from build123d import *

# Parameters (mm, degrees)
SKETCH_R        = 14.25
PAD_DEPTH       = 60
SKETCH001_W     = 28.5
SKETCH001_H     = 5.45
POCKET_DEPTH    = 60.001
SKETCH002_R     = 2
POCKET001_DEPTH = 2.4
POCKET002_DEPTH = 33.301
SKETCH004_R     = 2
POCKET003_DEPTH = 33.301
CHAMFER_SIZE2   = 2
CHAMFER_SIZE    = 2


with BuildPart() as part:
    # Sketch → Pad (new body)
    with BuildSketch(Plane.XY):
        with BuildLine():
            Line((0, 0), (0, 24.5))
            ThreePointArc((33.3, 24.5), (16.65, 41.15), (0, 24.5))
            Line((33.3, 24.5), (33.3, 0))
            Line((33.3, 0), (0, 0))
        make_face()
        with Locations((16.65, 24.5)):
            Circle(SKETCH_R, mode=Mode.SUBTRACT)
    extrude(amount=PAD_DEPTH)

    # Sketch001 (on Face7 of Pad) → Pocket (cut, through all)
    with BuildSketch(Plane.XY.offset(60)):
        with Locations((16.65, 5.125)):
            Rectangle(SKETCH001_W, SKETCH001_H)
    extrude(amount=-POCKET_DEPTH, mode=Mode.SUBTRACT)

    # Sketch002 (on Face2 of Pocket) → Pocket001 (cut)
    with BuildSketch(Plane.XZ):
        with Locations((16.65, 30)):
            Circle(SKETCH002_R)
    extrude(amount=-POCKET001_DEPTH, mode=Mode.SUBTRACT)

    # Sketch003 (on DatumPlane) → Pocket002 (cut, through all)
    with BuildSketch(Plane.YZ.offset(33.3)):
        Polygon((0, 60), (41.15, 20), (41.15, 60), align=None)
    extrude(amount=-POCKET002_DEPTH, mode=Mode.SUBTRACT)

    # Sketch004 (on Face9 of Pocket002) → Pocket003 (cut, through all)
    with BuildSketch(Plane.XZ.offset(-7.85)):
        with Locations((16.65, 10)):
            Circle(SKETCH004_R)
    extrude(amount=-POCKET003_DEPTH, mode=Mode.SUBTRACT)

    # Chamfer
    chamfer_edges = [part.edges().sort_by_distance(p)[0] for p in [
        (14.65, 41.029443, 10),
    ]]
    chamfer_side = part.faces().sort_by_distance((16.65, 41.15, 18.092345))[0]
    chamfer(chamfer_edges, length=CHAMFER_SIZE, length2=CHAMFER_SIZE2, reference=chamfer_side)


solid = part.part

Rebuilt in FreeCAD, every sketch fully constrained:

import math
import FreeCAD as App
import Part
import Sketcher
from FreeCAD import Vector
Q = App.Units.Quantity


def edges_at(feature, points):
    """Names of the edges that pass closest to the given points."""
    edges = feature.Shape.Edges
    near = lambda p: min(range(len(edges)), key=lambda i: edges[i].distToShape(Part.Vertex(*p))[0])
    return sorted({f"Edge{near(p) + 1}" for p in points})


def add_polygon(sketch, points):
    """Adds a closed chain of lines whose ends are joined by coincident constraints."""
    first, n = sketch.GeometryCount, len(points)
    for a, b in zip(points, points[1:] + points[:1]):
        sketch.addGeometry(Part.LineSegment(App.Vector(*a, 0), App.Vector(*b, 0)), False)
    for i in range(n):
        sketch.addConstraint(Sketcher.Constraint("Coincident", first + i, 2, first + (i + 1) % n, 1))

doc = App.newDocument("Part")
body = doc.addObject("PartDesign::Body", "Body")

sketch1 = body.newObject("Sketcher::SketchObject", "Sketch")
sketch1.AttachmentSupport = (doc.getObject("XY_Plane"), [""])
sketch1.MapMode = "FlatFace"
sketch1.addGeometry([
    Part.LineSegment(Vector(0, 24, 0), Vector(0, 0, 0)),
    Part.LineSegment(Vector(0, 0, 0), Vector(33, 0, 0)),
    Part.LineSegment(Vector(33, 0, 0), Vector(33, 24, 0)),
    Part.ArcOfCircle(Part.Circle(Vector(17, 24, 0), Vector(0, 0, 1), 17), math.radians(0), math.radians(180)),
    Part.Circle(Vector(17, 24, 0), Vector(0, 0, 1), 14),
], False)
sketch1.addConstraint([
    Sketcher.Constraint("Coincident", 0, 2, 1, 1),
    Sketcher.Constraint("Coincident", 1, 2, 2, 1),
    Sketcher.Constraint("Tangent", 2, 2, 3, 1),
    Sketcher.Constraint("Tangent", 3, 2, 0, 1),
    Sketcher.Constraint("Vertical", 0),
    Sketcher.Constraint("Horizontal", 1),
    Sketcher.Constraint("Vertical", 2),
    Sketcher.Constraint("Coincident", 0, 2, -1, 1),
    Sketcher.Constraint("Coincident", 4, 3, 3, 3),
    Sketcher.Constraint("Diameter", 4, Q("28.5 mm")),
    Sketcher.Constraint("Radius", 3, Q("16.65 mm")),
    Sketcher.Constraint("DistanceY", 0, 2, 0, 1, Q("24.5 mm")),
])
pad1 = body.newObject("PartDesign::Pad", "Pad")
pad1.Profile = sketch1
pad1.Length = 60

sketch2 = body.newObject("Sketcher::SketchObject", "Sketch001")
sketch2.AttachmentSupport = (doc.getObject("XY_Plane"), [""])
sketch2.MapMode = "FlatFace"
sketch2.AttachmentOffset = App.Placement(Vector(0, 0, 60), App.Rotation())
add_polygon(sketch2, [(2, 8), (2, 2), (31, 2), (31, 8)])
sketch2.addConstraint([
    Sketcher.Constraint("Vertical", 0),
    Sketcher.Constraint("Horizontal", 1),
    Sketcher.Constraint("Vertical", 2),
    Sketcher.Constraint("Horizontal", 3),
    Sketcher.Constraint("DistanceX", 1, 1, 1, 2, Q("28.5 mm")),
    Sketcher.Constraint("DistanceY", 0, 2, 0, 1, Q("5.45 mm")),
    Sketcher.Constraint("DistanceX", -1, 1, 0, 2, Q("2.4 mm")),
    Sketcher.Constraint("DistanceY", -1, 1, 0, 2, Q("2.4 mm")),
])
pocket1 = body.newObject("PartDesign::Pocket", "Pocket")
pocket1.Profile = sketch2
pocket1.Type = "ThroughAll"

sketch3 = body.newObject("Sketcher::SketchObject", "Sketch002")
sketch3.AttachmentSupport = (doc.getObject("XZ_Plane"), [""])
sketch3.MapMode = "FlatFace"
sketch3.addGeometry(Part.Circle(Vector(16.6, 30, 0), Vector(0, 0, 1), 2), False)
sketch3.addConstraint([
    Sketcher.Constraint("Diameter", 0, Q("4 mm")),
    Sketcher.Constraint("DistanceY", -1, 1, 0, 3, Q("30 mm")),
    Sketcher.Constraint("DistanceX", -1, 1, 0, 3, Q("16.65 mm")),
])
pocket2 = body.newObject("PartDesign::Pocket", "Pocket001")
pocket2.Profile = sketch3
pocket2.Length = 2.4

sketch4 = body.newObject("Sketcher::SketchObject", "Sketch003")
sketch4.AttachmentSupport = (doc.getObject("YZ_Plane"), [""])
sketch4.MapMode = "FlatFace"
sketch4.AttachmentOffset = App.Placement(Vector(0, 0, 33.3), App.Rotation())
add_polygon(sketch4, [(0, 60), (41, 20), (41, 60)])
sketch4.addConstraint([
    Sketcher.Constraint("Vertical", 1),
    Sketcher.Constraint("Horizontal", 2),
    Sketcher.Constraint("PointOnObject", 2, 2, -2),
    Sketcher.Constraint("DistanceY", 1, 1, 1, 2, Q("40 mm")),
    Sketcher.Constraint("DistanceY", -1, 1, 0, 2, Q("20 mm")),
    Sketcher.Constraint("DistanceX", 2, 2, 2, 1, Q("41.15 mm")),
])
pocket3 = body.newObject("PartDesign::Pocket", "Pocket002")
pocket3.Profile = sketch4
pocket3.Type = "ThroughAll"

sketch5 = body.newObject("Sketcher::SketchObject", "Sketch004")
sketch5.AttachmentSupport = (doc.getObject("XZ_Plane"), [""])
sketch5.MapMode = "FlatFace"
sketch5.AttachmentOffset = App.Placement(Vector(0, 0, -7.85), App.Rotation())
sketch5.addGeometry(Part.Circle(Vector(16.6, 10, 0), Vector(0, 0, 1), 2), False)
sketch5.addConstraint([
    Sketcher.Constraint("Diameter", 0, Q("4 mm")),
    Sketcher.Constraint("DistanceY", -1, 1, 0, 3, Q("10 mm")),
    Sketcher.Constraint("DistanceX", -1, 1, 0, 3, Q("16.65 mm")),
])
pocket4 = body.newObject("PartDesign::Pocket", "Pocket003")
pocket4.Profile = sketch5
pocket4.Type = "ThroughAll"
doc.recompute()

chamfer = body.newObject("PartDesign::Chamfer", "Chamfer")
chamfer.Base = (pocket4, edges_at(pocket4, [(14.65, 41.029, 10)]))
chamfer.ChamferType = "Two distances"
chamfer.Size = 2
chamfer.Size2 = 2

doc.recompute()
